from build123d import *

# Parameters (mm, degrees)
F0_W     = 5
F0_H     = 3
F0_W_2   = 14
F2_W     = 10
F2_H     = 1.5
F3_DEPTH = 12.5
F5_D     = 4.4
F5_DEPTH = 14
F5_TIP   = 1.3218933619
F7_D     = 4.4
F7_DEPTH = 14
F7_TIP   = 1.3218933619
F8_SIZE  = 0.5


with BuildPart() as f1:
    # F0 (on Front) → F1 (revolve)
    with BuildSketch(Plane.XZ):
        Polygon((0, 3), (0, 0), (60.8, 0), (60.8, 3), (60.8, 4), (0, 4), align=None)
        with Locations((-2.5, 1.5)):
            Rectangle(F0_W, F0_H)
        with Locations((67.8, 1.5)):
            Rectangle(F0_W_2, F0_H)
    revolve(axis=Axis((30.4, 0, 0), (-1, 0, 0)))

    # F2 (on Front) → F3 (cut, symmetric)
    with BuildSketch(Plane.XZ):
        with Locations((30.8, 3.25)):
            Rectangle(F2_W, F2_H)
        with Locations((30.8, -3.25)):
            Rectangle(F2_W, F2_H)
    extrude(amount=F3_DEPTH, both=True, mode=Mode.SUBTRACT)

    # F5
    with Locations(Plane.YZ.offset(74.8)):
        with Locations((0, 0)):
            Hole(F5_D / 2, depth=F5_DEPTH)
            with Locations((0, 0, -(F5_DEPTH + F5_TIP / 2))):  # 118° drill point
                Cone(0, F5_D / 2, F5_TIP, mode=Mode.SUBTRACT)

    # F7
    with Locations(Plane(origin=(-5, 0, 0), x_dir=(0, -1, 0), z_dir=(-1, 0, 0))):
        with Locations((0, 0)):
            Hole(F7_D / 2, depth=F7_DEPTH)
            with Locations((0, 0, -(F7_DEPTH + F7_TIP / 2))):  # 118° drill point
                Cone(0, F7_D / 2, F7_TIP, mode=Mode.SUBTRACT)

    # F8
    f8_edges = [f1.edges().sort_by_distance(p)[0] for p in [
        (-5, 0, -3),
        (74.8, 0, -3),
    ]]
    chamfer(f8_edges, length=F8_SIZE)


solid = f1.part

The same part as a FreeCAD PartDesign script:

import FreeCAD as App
import Part
import Sketcher

V = App.Vector


def edges_at(feature, points):
    """Names of the edges that pass closest to the given points."""
    edges = feature.Shape.Edges
    near = lambda p: min(range(len(edges)), key=lambda i: edges[i].distToShape(Part.Vertex(*p))[0])
    return sorted({f"Edge{near(p) + 1}" for p in points})

doc = App.newDocument("Part")
body = doc.addObject("PartDesign::Body", "Body")

# Sketch on XZ plane
sketch1 = body.newObject("Sketcher::SketchObject", "Sketch")
sketch1.AttachmentSupport = (doc.getObject("XZ_Plane"), [""])
sketch1.MapMode = "FlatFace"
sketch1.addGeometry([
    Part.LineSegment(V(60.8, 3, 0), V(60.8, 4, 0)),  # 0
    Part.LineSegment(V(60.8, 4, 0), V(0, 4, 0)),  # 1
    Part.LineSegment(V(0, 4, 0), V(0, 3, 0)),  # 2
    Part.LineSegment(V(0, 3, 0), V(-5, 3, 0)),  # 3
    Part.LineSegment(V(-5, 3, 0), V(-5, 0, 0)),  # 4
    Part.LineSegment(V(-5, 0, 0), V(74.8, 0, 0)),  # 5
    Part.LineSegment(V(74.8, 0, 0), V(74.8, 3, 0)),  # 6
    Part.LineSegment(V(74.8, 3, 0), V(60.8, 3, 0)),  # 7
], False)
sketch1.addConstraint([
    Sketcher.Constraint("Coincident", 0, 2, 1, 1),
    Sketcher.Constraint("Coincident", 1, 2, 2, 1),
    Sketcher.Constraint("Coincident", 2, 2, 3, 1),
    Sketcher.Constraint("Coincident", 3, 2, 4, 1),
    Sketcher.Constraint("Coincident", 4, 2, 5, 1),
    Sketcher.Constraint("Coincident", 5, 2, 6, 1),
    Sketcher.Constraint("Coincident", 6, 2, 7, 1),
    Sketcher.Constraint("Coincident", 7, 2, 0, 1),
    Sketcher.Constraint("Vertical", 0),
    Sketcher.Constraint("Horizontal", 1),
    Sketcher.Constraint("Vertical", 2),
    Sketcher.Constraint("Horizontal", 3),
    Sketcher.Constraint("Vertical", 4),
    Sketcher.Constraint("Horizontal", 5),
    Sketcher.Constraint("Vertical", 6),
    Sketcher.Constraint("Horizontal", 7),
    Sketcher.Constraint("PointOnObject", 1, 2, -2),
    Sketcher.Constraint("PointOnObject", 4, 2, -1),
    Sketcher.Constraint("Horizontal", 3, 2, 6, 2),
    Sketcher.Constraint("DistanceX", 3, 2, 3, 1, 5.0),
    Sketcher.Constraint("DistanceX", 7, 2, 7, 1, 14.0),
    Sketcher.Constraint("DistanceY", 0, 1, 0, 2, 1.0),
    Sketcher.Constraint("DistanceY", 4, 2, 4, 1, 3.0),
    Sketcher.Constraint("DistanceX", 1, 2, 1, 1, 60.8),
])
revolution = body.newObject("PartDesign::Revolution", "Revolution")
revolution.Profile = sketch1
revolution.ReferenceAxis = (sketch1, ["H_Axis"])
revolution.Angle = 360

# Sketch on XZ plane
sketch2 = body.newObject("Sketcher::SketchObject", "Sketch001")
sketch2.AttachmentSupport = (doc.getObject("XZ_Plane"), [""])
sketch2.MapMode = "FlatFace"
sketch2.addGeometry([
    Part.LineSegment(V(25.8, 4, 0), V(25.8, 2.5, 0)),  # 0
    Part.LineSegment(V(25.8, 2.5, 0), V(35.8, 2.5, 0)),  # 1
    Part.LineSegment(V(35.8, 2.5, 0), V(35.8, 4, 0)),  # 2
    Part.LineSegment(V(35.8, 4, 0), V(25.8, 4, 0)),  # 3
    Part.LineSegment(V(25.8, -2.5, 0), V(25.8, -4, 0)),  # 4
    Part.LineSegment(V(25.8, -4, 0), V(35.8, -4, 0)),  # 5
    Part.LineSegment(V(35.8, -4, 0), V(35.8, -2.5, 0)),  # 6
    Part.LineSegment(V(35.8, -2.5, 0), V(25.8, -2.5, 0)),  # 7
], False)
sketch2.addConstraint([
    Sketcher.Constraint("Coincident", 0, 2, 1, 1),
    Sketcher.Constraint("Coincident", 1, 2, 2, 1),
    Sketcher.Constraint("Coincident", 2, 2, 3, 1),
    Sketcher.Constraint("Coincident", 3, 2, 0, 1),
    Sketcher.Constraint("Coincident", 4, 2, 5, 1),
    Sketcher.Constraint("Coincident", 5, 2, 6, 1),
    Sketcher.Constraint("Coincident", 6, 2, 7, 1),
    Sketcher.Constraint("Coincident", 7, 2, 4, 1),
    Sketcher.Constraint("Vertical", 0),
    Sketcher.Constraint("Horizontal", 1),
    Sketcher.Constraint("Vertical", 2),
    Sketcher.Constraint("Horizontal", 3),
    Sketcher.Constraint("Vertical", 4),
    Sketcher.Constraint("Horizontal", 5),
    Sketcher.Constraint("Vertical", 6),
    Sketcher.Constraint("Horizontal", 7),
    Sketcher.Constraint("Symmetric", 3, 2, 4, 2, -1),
    Sketcher.Constraint("Symmetric", 1, 2, 6, 2, -1),
    Sketcher.Constraint("DistanceX", 1, 1, 1, 2, 10.0),
    Sketcher.Constraint("DistanceY", 0, 2, 0, 1, 1.5),
    Sketcher.Constraint("DistanceY", -1, 1, 2, 2, 4.0),
    Sketcher.Constraint("DistanceX", -1, 1, 0, 2, 25.8),
])
pocket1 = body.newObject("PartDesign::Pocket", "Pocket")
pocket1.Profile = sketch2
pocket1.Length = 25
pocket1.Midplane = True

# Sketch on YZ plane
sketch3 = body.newObject("Sketcher::SketchObject", "Sketch002")
sketch3.AttachmentSupport = (doc.getObject("YZ_Plane"), [""])
sketch3.MapMode = "FlatFace"
sketch3.AttachmentOffset = App.Placement(V(0, 0, 74.8), App.Rotation())
sketch3.addGeometry(Part.Circle(V(0, 0, 0), V(0, 0, 1), 2.2), False)
sketch3.addConstraint([
    Sketcher.Constraint("Coincident", 0, 3, -1, 1),
    Sketcher.Constraint("Diameter", 0, 4.4),
])
doc.recompute()
hole = body.newObject("PartDesign::Hole", "Hole")
hole.Profile = sketch3
hole.ThreadType = "None"
hole.Diameter = 4.4
hole.DepthType = "Dimension"
hole.Depth = 14
hole.DrillPoint = "Angled"
hole.DrillPointAngle = 118

# Sketch on YZ plane
sketch4 = body.newObject("Sketcher::SketchObject", "Sketch003")
sketch4.AttachmentSupport = (doc.getObject("YZ_Plane"), [""])
sketch4.MapMode = "FlatFace"
sketch4.AttachmentOffset = App.Placement(V(0, 0, -5), App.Rotation())
sketch4.addGeometry(Part.Circle(V(0, 0, 0), V(0, 0, 1), 2.2), False)
sketch4.addConstraint([
    Sketcher.Constraint("Coincident", 0, 3, -1, 1),
    Sketcher.Constraint("Diameter", 0, 4.4),
])
doc.recompute()
hole2 = body.newObject("PartDesign::Hole", "Hole001")
hole2.Profile = sketch4
hole2.ThreadType = "None"
hole2.Diameter = 4.4
hole2.DepthType = "Dimension"
hole2.Depth = 14
hole2.DrillPoint = "Angled"
hole2.DrillPointAngle = 118
hole2.Reversed = True
doc.recompute()

chamfer = body.newObject("PartDesign::Chamfer", "Chamfer")
chamfer.Base = (hole2, edges_at(hole2, [(-5, 0, -3), (74.8, 0, -3)]))
chamfer.Size = 0.5

doc.recompute()
